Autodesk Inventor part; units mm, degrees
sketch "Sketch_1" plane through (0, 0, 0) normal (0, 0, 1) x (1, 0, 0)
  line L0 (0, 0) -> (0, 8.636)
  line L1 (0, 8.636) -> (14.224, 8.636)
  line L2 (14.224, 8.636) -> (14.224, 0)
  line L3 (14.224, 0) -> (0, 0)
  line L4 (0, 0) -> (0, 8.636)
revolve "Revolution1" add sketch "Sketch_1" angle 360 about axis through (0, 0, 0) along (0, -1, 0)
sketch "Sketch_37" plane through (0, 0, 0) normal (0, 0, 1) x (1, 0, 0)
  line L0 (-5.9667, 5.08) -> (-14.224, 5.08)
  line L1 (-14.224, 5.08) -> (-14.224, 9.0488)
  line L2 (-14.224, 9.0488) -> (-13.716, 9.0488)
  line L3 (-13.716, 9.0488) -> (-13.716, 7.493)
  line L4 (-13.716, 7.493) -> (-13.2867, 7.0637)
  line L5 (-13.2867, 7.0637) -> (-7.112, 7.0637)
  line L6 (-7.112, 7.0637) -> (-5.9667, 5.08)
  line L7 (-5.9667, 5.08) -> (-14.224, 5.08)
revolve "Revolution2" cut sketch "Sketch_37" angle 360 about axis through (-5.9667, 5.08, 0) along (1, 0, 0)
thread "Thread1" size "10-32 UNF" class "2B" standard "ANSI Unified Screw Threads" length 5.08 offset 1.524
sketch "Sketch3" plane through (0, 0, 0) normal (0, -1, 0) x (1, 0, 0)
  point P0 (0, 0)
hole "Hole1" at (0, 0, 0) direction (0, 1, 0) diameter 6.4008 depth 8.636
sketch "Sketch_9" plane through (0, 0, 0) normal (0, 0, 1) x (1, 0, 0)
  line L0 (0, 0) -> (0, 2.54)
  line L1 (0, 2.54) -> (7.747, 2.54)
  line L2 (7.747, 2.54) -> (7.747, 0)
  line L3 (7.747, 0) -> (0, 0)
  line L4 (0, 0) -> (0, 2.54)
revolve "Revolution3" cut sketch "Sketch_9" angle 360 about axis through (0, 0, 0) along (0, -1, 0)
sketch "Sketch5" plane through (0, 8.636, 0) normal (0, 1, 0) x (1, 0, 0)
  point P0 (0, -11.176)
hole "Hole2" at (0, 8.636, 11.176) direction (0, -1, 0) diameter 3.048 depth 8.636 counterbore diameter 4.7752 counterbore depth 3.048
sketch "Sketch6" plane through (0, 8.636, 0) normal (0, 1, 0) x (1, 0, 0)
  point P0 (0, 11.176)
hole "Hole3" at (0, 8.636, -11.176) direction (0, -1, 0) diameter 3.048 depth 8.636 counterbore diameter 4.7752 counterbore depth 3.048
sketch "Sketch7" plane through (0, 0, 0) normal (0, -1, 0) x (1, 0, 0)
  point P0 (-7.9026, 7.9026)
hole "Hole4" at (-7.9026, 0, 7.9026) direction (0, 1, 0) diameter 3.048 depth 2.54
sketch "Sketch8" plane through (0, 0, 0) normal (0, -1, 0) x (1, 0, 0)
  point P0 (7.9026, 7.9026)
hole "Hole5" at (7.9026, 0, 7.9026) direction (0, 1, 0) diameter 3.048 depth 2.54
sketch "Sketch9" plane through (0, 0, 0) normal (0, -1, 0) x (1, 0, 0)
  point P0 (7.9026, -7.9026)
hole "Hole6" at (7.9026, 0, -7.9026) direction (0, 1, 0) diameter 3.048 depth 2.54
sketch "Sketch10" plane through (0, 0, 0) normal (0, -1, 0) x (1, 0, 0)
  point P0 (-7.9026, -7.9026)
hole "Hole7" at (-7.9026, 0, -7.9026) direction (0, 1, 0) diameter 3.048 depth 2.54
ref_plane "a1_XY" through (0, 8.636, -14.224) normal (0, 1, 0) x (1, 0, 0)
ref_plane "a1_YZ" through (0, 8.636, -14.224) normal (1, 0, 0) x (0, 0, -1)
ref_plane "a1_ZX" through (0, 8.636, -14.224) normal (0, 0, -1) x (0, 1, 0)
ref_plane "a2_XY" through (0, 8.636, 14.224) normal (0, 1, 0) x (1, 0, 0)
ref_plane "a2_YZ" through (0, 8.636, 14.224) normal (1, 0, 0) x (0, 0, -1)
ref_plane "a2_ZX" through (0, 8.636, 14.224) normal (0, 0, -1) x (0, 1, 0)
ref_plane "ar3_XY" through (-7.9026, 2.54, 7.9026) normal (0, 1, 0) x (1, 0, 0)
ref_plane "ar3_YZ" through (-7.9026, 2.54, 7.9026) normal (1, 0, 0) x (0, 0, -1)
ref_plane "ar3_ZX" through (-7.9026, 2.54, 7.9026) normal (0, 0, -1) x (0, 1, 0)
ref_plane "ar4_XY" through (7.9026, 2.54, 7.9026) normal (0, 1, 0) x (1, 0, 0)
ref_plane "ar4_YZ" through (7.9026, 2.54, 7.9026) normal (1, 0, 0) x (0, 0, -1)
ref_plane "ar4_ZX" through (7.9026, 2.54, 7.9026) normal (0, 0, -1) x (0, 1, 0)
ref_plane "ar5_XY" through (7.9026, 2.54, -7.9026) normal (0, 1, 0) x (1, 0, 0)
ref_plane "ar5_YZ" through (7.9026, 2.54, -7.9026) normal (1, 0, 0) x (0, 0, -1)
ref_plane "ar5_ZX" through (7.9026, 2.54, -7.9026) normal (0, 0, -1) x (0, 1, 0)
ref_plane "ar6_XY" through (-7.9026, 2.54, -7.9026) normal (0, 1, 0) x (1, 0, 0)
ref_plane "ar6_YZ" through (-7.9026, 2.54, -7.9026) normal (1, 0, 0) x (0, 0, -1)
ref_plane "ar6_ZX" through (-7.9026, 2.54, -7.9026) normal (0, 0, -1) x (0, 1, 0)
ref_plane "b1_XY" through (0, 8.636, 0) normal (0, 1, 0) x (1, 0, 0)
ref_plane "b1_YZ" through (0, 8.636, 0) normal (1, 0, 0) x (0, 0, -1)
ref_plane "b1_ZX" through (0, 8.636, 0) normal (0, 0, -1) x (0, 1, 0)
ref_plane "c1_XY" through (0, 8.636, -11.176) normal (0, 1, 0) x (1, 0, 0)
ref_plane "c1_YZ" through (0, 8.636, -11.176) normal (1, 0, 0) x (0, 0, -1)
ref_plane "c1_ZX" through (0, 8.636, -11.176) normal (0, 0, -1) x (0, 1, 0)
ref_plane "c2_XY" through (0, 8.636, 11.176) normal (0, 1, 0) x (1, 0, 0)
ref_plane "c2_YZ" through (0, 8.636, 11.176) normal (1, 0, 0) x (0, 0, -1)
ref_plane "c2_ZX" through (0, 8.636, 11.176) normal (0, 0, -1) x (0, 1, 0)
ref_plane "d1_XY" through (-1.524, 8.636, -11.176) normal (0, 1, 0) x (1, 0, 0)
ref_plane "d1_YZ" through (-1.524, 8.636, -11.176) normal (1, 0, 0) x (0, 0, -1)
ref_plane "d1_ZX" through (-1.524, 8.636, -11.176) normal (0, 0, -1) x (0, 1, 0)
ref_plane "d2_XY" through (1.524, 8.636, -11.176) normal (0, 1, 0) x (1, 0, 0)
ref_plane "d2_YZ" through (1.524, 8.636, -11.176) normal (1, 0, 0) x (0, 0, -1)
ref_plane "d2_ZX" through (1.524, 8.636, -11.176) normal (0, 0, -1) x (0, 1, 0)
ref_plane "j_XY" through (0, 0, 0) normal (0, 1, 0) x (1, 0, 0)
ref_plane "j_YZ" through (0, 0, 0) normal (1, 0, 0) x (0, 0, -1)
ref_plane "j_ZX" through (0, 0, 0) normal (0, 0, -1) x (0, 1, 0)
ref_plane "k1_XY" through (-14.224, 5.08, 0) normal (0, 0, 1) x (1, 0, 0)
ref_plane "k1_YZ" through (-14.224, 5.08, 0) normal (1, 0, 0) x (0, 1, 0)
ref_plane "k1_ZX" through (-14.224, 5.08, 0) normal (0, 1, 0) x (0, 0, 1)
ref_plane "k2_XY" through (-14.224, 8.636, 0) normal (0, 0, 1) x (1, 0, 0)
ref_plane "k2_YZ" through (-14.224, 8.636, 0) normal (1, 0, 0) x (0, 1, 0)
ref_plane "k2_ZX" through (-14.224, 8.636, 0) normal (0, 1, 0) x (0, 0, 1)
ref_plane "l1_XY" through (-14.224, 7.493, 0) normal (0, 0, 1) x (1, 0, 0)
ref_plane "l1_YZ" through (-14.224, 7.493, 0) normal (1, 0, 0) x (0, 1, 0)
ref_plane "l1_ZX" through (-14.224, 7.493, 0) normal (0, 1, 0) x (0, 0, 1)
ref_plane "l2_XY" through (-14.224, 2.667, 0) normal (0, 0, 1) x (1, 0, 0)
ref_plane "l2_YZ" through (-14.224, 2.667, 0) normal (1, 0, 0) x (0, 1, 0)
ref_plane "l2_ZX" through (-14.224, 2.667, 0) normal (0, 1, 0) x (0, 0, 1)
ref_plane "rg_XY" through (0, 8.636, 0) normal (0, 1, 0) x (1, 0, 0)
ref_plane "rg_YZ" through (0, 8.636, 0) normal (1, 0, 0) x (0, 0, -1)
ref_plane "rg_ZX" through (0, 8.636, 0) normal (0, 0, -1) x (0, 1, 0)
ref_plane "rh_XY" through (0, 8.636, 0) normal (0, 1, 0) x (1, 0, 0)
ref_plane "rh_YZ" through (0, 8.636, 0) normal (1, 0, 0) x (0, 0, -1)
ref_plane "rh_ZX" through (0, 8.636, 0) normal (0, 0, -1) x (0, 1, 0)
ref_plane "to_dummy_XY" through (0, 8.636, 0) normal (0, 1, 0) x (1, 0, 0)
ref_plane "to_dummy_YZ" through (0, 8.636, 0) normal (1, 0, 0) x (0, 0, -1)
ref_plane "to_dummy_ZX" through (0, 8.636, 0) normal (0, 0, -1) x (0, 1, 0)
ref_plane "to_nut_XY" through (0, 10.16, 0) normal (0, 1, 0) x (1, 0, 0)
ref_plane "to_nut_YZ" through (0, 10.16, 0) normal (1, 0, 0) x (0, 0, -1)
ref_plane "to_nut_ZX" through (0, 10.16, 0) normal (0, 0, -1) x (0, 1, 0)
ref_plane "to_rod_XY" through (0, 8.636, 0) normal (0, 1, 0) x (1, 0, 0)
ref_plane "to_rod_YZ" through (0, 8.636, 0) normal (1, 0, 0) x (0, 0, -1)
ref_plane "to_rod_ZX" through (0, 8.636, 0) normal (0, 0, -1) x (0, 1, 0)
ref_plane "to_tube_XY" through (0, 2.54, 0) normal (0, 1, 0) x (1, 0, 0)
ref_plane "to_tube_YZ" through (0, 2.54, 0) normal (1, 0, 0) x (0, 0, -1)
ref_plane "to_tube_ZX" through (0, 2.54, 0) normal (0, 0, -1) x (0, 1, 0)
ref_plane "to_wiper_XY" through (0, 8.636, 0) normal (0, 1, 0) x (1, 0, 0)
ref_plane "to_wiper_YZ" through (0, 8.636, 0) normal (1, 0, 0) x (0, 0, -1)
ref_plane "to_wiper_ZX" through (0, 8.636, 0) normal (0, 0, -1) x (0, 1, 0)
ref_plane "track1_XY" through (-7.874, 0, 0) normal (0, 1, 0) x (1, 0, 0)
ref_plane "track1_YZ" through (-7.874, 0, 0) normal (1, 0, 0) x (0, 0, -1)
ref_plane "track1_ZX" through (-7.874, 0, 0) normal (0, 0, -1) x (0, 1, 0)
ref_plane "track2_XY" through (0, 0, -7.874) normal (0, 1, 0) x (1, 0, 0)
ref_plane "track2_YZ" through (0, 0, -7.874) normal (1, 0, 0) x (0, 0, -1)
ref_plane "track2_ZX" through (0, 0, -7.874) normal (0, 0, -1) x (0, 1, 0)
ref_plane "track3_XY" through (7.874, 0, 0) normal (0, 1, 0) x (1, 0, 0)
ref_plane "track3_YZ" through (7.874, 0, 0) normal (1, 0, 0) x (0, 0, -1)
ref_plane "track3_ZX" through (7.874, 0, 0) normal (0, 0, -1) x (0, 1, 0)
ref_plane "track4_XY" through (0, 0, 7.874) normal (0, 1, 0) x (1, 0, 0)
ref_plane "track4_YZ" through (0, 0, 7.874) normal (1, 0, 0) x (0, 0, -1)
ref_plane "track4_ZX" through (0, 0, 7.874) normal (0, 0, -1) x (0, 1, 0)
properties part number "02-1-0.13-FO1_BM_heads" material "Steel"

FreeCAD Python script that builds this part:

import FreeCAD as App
import Part
import Sketcher
from FreeCAD import Vector
Q = App.Units.Quantity

doc = App.newDocument("Part")
body = doc.addObject("PartDesign::Body", "Body")

# Sketch on XY plane
sketch1 = body.newObject("Sketcher::SketchObject", "Sketch")
sketch1.AttachmentSupport = (doc.getObject("XY_Plane"), [""])
sketch1.MapMode = "FlatFace"
sketch1.addGeometry([
    Part.LineSegment(Vector(0, 9, 0), Vector(0, 0, 0)),
    Part.LineSegment(Vector(0, 0, 0), Vector(14, 0, 0)),
    Part.LineSegment(Vector(14, 0, 0), Vector(14, 9, 0)),
    Part.LineSegment(Vector(14, 9, 0), Vector(0, 9, 0)),
], False)
sketch1.addConstraint([
    Sketcher.Constraint("Coincident", 0, 2, 1, 1),
    Sketcher.Constraint("Coincident", 1, 2, 2, 1),
    Sketcher.Constraint("Coincident", 2, 2, 3, 1),
    Sketcher.Constraint("Coincident", 3, 2, 0, 1),
    Sketcher.Constraint("Vertical", 0),
    Sketcher.Constraint("Horizontal", 1),
    Sketcher.Constraint("Vertical", 2),
    Sketcher.Constraint("Horizontal", 3),
    Sketcher.Constraint("Coincident", 0, 2, -1, 1),
    Sketcher.Constraint("DistanceX", 1, 1, 1, 2, Q("0.56 in")),
    Sketcher.Constraint("DistanceY", 0, 2, 0, 1, Q("0.34 in")),
])
revolution = body.newObject("PartDesign::Revolution", "Revolution")
revolution.Profile = sketch1
revolution.ReferenceAxis = (sketch1, ["V_Axis"])
revolution.Angle = 360

# Sketch on XY plane
sketch2 = body.newObject("Sketcher::SketchObject", "Sketch001")
sketch2.AttachmentSupport = (doc.getObject("XY_Plane"), [""])
sketch2.MapMode = "FlatFace"
sketch2.addGeometry([
    Part.LineSegment(Vector(-14.2, 5.1, 0), Vector(-6, 5.1, 0)),  # 0
    Part.LineSegment(Vector(-6, 5.1, 0), Vector(-7.1, 7.1, 0)),  # 1
    Part.LineSegment(Vector(-7.1, 7.1, 0), Vector(-13.3, 7.1, 0)),  # 2
    Part.LineSegment(Vector(-13.3, 7.1, 0), Vector(-13.7, 7.5, 0)),  # 3
    Part.LineSegment(Vector(-13.7, 7.5, 0), Vector(-13.7, 9, 0)),  # 4
    Part.LineSegment(Vector(-13.7, 9, 0), Vector(-14.2, 9, 0)),  # 5
    Part.LineSegment(Vector(-14.2, 9, 0), Vector(-14.2, 5.1, 0)),  # 6
], False)
sketch2.addGeometry(Part.LineSegment(Vector(-14.2, 5.1, 0), Vector(-6, 5.1, 0)), True)  # axis
sketch2.addConstraint([
    Sketcher.Constraint("Coincident", 0, 2, 1, 1),
    Sketcher.Constraint("Coincident", 1, 2, 2, 1),
    Sketcher.Constraint("Coincident", 2, 2, 3, 1),
    Sketcher.Constraint("Coincident", 3, 2, 4, 1),
    Sketcher.Constraint("Coincident", 4, 2, 5, 1),
    Sketcher.Constraint("Coincident", 5, 2, 6, 1),
    Sketcher.Constraint("Coincident", 6, 2, 0, 1),
    Sketcher.Constraint("Horizontal", 0),
    Sketcher.Constraint("Horizontal", 2),
    Sketcher.Constraint("Vertical", 4),
    Sketcher.Constraint("Horizontal", 5),
    Sketcher.Constraint("Vertical", 6),
    Sketcher.Constraint("Horizontal", 7),
    Sketcher.Constraint("Coincident", 7, 1, 6, 2),
    Sketcher.Constraint("Equal", 0, 7),
    Sketcher.Constraint("Angle", 1, Q("120.0002 deg")),
    Sketcher.Constraint("Angle", 3, Q("135 deg")),
    Sketcher.Constraint("DistanceX", 5, 2, 5, 1, Q("0.02 in")),
    Sketcher.Constraint("DistanceY", -1, 1, 0, 2, Q("0.2 in")),
    Sketcher.Constraint("DistanceY", 6, 2, 6, 1, Q("0.156252 in")),
    Sketcher.Constraint("DistanceX", 1, 2, -1, 1, Q("0.28 in")),
    Sketcher.Constraint("DistanceX", 3, 2, -1, 1, Q("0.54 in")),
    Sketcher.Constraint("DistanceX", 0, 1, 0, 2, Q("0.3251 in")),
    Sketcher.Constraint("DistanceX", 2, 2, 2, 1, Q("0.2431 in")),
])
groove = body.newObject("PartDesign::Groove", "Groove")
groove.Profile = sketch2
groove.ReferenceAxis = (sketch2, ["Axis0"])
groove.Angle = 360

# Sketch on XZ plane
sketch3 = body.newObject("Sketcher::SketchObject", "Sketch002")
sketch3.AttachmentSupport = (doc.getObject("XZ_Plane"), [""])
sketch3.MapMode = "FlatFace"
sketch3.addGeometry(Part.Circle(Vector(0, 0, 0), Vector(0, 0, 1), 3.2), False)
sketch3.addConstraint([
    Sketcher.Constraint("Coincident", 0, 3, -1, 1),
    Sketcher.Constraint("Diameter", 0, Q("0.252 in")),
])
doc.recompute()
hole = body.newObject("PartDesign::Hole", "Hole")
hole.Profile = sketch3
hole.ThreadType = "None"
hole.Diameter = Q("0.252 in")
hole.DepthType = "Dimension"
hole.Depth = Q("0.34 in")
hole.DrillPoint = "Flat"

# Sketch on XY plane
sketch4 = body.newObject("Sketcher::SketchObject", "Sketch003")
sketch4.AttachmentSupport = (doc.getObject("XY_Plane"), [""])
sketch4.MapMode = "FlatFace"
sketch4.addGeometry([
    Part.LineSegment(Vector(0, 2.5, 0), Vector(0, 0, 0)),
    Part.LineSegment(Vector(0, 0, 0), Vector(7.7, 0, 0)),
    Part.LineSegment(Vector(7.7, 0, 0), Vector(7.7, 2.5, 0)),
    Part.LineSegment(Vector(7.7, 2.5, 0), Vector(0, 2.5, 0)),
], False)
sketch4.addConstraint([
    Sketcher.Constraint("Coincident", 0, 2, 1, 1),
    Sketcher.Constraint("Coincident", 1, 2, 2, 1),
    Sketcher.Constraint("Coincident", 2, 2, 3, 1),
    Sketcher.Constraint("Coincident", 3, 2, 0, 1),
    Sketcher.Constraint("Vertical", 0),
    Sketcher.Constraint("Horizontal", 1),
    Sketcher.Constraint("Vertical", 2),
    Sketcher.Constraint("Horizontal", 3),
    Sketcher.Constraint("Coincident", 0, 2, -1, 1),
    Sketcher.Constraint("DistanceY", 0, 2, 0, 1, Q("0.1 in")),
    Sketcher.Constraint("DistanceX", 1, 1, 1, 2, Q("0.305 in")),
])
groove2 = body.newObject("PartDesign::Groove", "Groove001")
groove2.Profile = sketch4
groove2.ReferenceAxis = (sketch4, ["V_Axis"])
groove2.Angle = 360

# Sketch on XZ plane
sketch5 = body.newObject("Sketcher::SketchObject", "Sketch004")
sketch5.AttachmentSupport = (doc.getObject("XZ_Plane"), [""])
sketch5.MapMode = "FlatFace"
sketch5.AttachmentOffset = App.Placement(Vector(0, 0, -0.34 * 25.4), App.Rotation())
sketch5.addGeometry(Part.Circle(Vector(0, 11.2, 0), Vector(0, 0, 1), 1.5), False)
sketch5.addConstraint([
    Sketcher.Constraint("PointOnObject", 0, 3, -2),
    Sketcher.Constraint("Diameter", 0, Q("0.12 in")),
    Sketcher.Constraint("DistanceY", -1, 1, 0, 3, Q("0.44 in")),
])
doc.recompute()
hole2 = body.newObject("PartDesign::Hole", "Hole001")
hole2.Profile = sketch5
hole2.ThreadType = "None"
hole2.Diameter = Q("0.12 in")
hole2.DepthType = "Dimension"
hole2.Depth = Q("0.34 in")
hole2.DrillPoint = "Flat"
hole2.HoleCutType = "Counterbore"
hole2.HoleCutDiameter = Q("0.188 in")
hole2.HoleCutDepth = Q("0.12 in")
hole2.Reversed = True

# Sketch on XZ plane
sketch6 = body.newObject("Sketcher::SketchObject", "Sketch005")
sketch6.AttachmentSupport = (doc.getObject("XZ_Plane"), [""])
sketch6.MapMode = "FlatFace"
sketch6.AttachmentOffset = App.Placement(Vector(0, 0, -0.34 * 25.4), App.Rotation())
sketch6.addGeometry(Part.Circle(Vector(0, -11.2, 0), Vector(0, 0, 1), 1.5), False)
sketch6.addConstraint([
    Sketcher.Constraint("PointOnObject", 0, 3, -2),
    Sketcher.Constraint("Diameter", 0, Q("0.12 in")),
    Sketcher.Constraint("DistanceY", 0, 3, -1, 1, Q("0.44 in")),
])
doc.recompute()
hole3 = body.newObject("PartDesign::Hole", "Hole002")
hole3.Profile = sketch6
hole3.ThreadType = "None"
hole3.Diameter = Q("0.12 in")
hole3.DepthType = "Dimension"
hole3.Depth = Q("0.34 in")
hole3.DrillPoint = "Flat"
hole3.HoleCutType = "Counterbore"
hole3.HoleCutDiameter = Q("0.188 in")
hole3.HoleCutDepth = Q("0.12 in")
hole3.Reversed = True

# Sketch on XZ plane
sketch7 = body.newObject("Sketcher::SketchObject", "Sketch006")
sketch7.AttachmentSupport = (doc.getObject("XZ_Plane"), [""])
sketch7.MapMode = "FlatFace"
sketch7.addGeometry(Part.Circle(Vector(-7.9, 7.9, 0), Vector(0, 0, 1), 1.5), False)
sketch7.addConstraint([
    Sketcher.Constraint("Diameter", 0, Q("0.12 in")),
    Sketcher.Constraint("DistanceX", 0, 3, -1, 1, Q("7.9026 mm")),
    Sketcher.Constraint("DistanceY", -1, 1, 0, 3, Q("7.9026 mm")),
])
doc.recompute()
hole4 = body.newObject("PartDesign::Hole", "Hole003")
hole4.Profile = sketch7
hole4.ThreadType = "None"
hole4.Diameter = Q("0.12 in")
hole4.DepthType = "Dimension"
hole4.Depth = Q("0.1 in")
hole4.DrillPoint = "Flat"

# Sketch on XZ plane
sketch8 = body.newObject("Sketcher::SketchObject", "Sketch007")
sketch8.AttachmentSupport = (doc.getObject("XZ_Plane"), [""])
sketch8.MapMode = "FlatFace"
sketch8.addGeometry(Part.Circle(Vector(7.9, 7.9, 0), Vector(0, 0, 1), 1.5), False)
sketch8.addConstraint([
    Sketcher.Constraint("Diameter", 0, Q("0.12 in")),
    Sketcher.Constraint("DistanceX", -1, 1, 0, 3, Q("7.9026 mm")),
    Sketcher.Constraint("DistanceY", -1, 1, 0, 3, Q("7.9026 mm")),
])
doc.recompute()
hole5 = body.newObject("PartDesign::Hole", "Hole004")
hole5.Profile = sketch8
hole5.ThreadType = "None"
hole5.Diameter = Q("0.12 in")
hole5.DepthType = "Dimension"
hole5.Depth = Q("0.1 in")
hole5.DrillPoint = "Flat"

# Sketch on XZ plane
sketch9 = body.newObject("Sketcher::SketchObject", "Sketch008")
sketch9.AttachmentSupport = (doc.getObject("XZ_Plane"), [""])
sketch9.MapMode = "FlatFace"
sketch9.addGeometry(Part.Circle(Vector(7.9, -7.9, 0), Vector(0, 0, 1), 1.5), False)
sketch9.addConstraint([
    Sketcher.Constraint("Diameter", 0, Q("0.12 in")),
    Sketcher.Constraint("DistanceX", -1, 1, 0, 3, Q("7.9026 mm")),
    Sketcher.Constraint("DistanceY", 0, 3, -1, 1, Q("7.9026 mm")),
])
doc.recompute()
hole6 = body.newObject("PartDesign::Hole", "Hole005")
hole6.Profile = sketch9
hole6.ThreadType = "None"
hole6.Diameter = Q("0.12 in")
hole6.DepthType = "Dimension"
hole6.Depth = Q("0.1 in")
hole6.DrillPoint = "Flat"

# Sketch on XZ plane
sketch10 = body.newObject("Sketcher::SketchObject", "Sketch009")
sketch10.AttachmentSupport = (doc.getObject("XZ_Plane"), [""])
sketch10.MapMode = "FlatFace"
sketch10.addGeometry(Part.Circle(Vector(-7.9, -7.9, 0), Vector(0, 0, 1), 1.5), False)
sketch10.addConstraint([
    Sketcher.Constraint("Diameter", 0, Q("0.12 in")),
    Sketcher.Constraint("DistanceX", 0, 3, -1, 1, Q("7.9026 mm")),
    Sketcher.Constraint("DistanceY", 0, 3, -1, 1, Q("7.9026 mm")),
])
doc.recompute()
hole7 = body.newObject("PartDesign::Hole", "Hole006")
hole7.Profile = sketch10
hole7.ThreadType = "None"
hole7.Diameter = Q("0.12 in")
hole7.DepthType = "Dimension"
hole7.Depth = Q("0.1 in")
hole7.DrillPoint = "Flat"

doc.recompute()
